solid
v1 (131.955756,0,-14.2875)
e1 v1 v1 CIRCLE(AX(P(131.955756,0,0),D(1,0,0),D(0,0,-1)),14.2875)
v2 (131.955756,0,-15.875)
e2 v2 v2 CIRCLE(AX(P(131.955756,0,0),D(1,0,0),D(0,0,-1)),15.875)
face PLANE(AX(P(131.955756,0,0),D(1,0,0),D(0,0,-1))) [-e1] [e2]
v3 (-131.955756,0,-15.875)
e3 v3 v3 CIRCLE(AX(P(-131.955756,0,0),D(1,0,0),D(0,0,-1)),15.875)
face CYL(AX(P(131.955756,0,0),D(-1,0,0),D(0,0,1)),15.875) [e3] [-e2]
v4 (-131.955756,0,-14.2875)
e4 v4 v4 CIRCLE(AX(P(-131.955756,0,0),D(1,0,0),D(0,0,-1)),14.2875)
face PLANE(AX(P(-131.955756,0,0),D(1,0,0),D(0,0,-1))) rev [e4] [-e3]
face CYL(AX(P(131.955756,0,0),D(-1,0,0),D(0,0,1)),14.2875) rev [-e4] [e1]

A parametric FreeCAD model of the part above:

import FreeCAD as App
import Part
import Sketcher
from FreeCAD import Vector
Q = App.Units.Quantity

doc = App.newDocument("Part")
params = doc.addObject("Spreadsheet::Sheet", "Params")
for row, (alias, value) in enumerate([
    ("sketch1_diameter", "1.25 in"),
    ("sketch1_diameter2", "1.125 in"),
    ("pad1_length", "263.911512 mm"),
], start=1):
    params.set(f"A{row}", alias)
    params.set(f"B{row}", "=" + value)
    params.setAlias(f"B{row}", alias)

body = doc.addObject("PartDesign::Body", "Body")

sketch1 = body.newObject("Sketcher::SketchObject", "Sketch")
sketch1.AttachmentSupport = (doc.getObject("YZ_Plane"), [""])
sketch1.MapMode = "FlatFace"
sketch1.addGeometry([
    Part.Circle(Vector(0, 0, 0), Vector(0, 0, 1), 15.875),
    Part.Circle(Vector(0, 0, 0), Vector(0, 0, 1), 14.2875),
], False)
sketch1.addConstraint([
    Sketcher.Constraint("Coincident", 0, 3, -1, 1),
    Sketcher.Constraint("Coincident", 1, 3, -1, 1),
    Sketcher.Constraint("Diameter", 0, Q("1.25 in")),
    Sketcher.Constraint("Diameter", 1, Q("1.125 in")),
])
sketch1.setExpression("Constraints[2]", "Params.sketch1_diameter")
sketch1.setExpression("Constraints[3]", "Params.sketch1_diameter2")
pad1 = body.newObject("PartDesign::Pad", "Pad")
pad1.Profile = sketch1
pad1.setExpression("Length", "Params.pad1_length")
pad1.Midplane = True

doc.recompute()
